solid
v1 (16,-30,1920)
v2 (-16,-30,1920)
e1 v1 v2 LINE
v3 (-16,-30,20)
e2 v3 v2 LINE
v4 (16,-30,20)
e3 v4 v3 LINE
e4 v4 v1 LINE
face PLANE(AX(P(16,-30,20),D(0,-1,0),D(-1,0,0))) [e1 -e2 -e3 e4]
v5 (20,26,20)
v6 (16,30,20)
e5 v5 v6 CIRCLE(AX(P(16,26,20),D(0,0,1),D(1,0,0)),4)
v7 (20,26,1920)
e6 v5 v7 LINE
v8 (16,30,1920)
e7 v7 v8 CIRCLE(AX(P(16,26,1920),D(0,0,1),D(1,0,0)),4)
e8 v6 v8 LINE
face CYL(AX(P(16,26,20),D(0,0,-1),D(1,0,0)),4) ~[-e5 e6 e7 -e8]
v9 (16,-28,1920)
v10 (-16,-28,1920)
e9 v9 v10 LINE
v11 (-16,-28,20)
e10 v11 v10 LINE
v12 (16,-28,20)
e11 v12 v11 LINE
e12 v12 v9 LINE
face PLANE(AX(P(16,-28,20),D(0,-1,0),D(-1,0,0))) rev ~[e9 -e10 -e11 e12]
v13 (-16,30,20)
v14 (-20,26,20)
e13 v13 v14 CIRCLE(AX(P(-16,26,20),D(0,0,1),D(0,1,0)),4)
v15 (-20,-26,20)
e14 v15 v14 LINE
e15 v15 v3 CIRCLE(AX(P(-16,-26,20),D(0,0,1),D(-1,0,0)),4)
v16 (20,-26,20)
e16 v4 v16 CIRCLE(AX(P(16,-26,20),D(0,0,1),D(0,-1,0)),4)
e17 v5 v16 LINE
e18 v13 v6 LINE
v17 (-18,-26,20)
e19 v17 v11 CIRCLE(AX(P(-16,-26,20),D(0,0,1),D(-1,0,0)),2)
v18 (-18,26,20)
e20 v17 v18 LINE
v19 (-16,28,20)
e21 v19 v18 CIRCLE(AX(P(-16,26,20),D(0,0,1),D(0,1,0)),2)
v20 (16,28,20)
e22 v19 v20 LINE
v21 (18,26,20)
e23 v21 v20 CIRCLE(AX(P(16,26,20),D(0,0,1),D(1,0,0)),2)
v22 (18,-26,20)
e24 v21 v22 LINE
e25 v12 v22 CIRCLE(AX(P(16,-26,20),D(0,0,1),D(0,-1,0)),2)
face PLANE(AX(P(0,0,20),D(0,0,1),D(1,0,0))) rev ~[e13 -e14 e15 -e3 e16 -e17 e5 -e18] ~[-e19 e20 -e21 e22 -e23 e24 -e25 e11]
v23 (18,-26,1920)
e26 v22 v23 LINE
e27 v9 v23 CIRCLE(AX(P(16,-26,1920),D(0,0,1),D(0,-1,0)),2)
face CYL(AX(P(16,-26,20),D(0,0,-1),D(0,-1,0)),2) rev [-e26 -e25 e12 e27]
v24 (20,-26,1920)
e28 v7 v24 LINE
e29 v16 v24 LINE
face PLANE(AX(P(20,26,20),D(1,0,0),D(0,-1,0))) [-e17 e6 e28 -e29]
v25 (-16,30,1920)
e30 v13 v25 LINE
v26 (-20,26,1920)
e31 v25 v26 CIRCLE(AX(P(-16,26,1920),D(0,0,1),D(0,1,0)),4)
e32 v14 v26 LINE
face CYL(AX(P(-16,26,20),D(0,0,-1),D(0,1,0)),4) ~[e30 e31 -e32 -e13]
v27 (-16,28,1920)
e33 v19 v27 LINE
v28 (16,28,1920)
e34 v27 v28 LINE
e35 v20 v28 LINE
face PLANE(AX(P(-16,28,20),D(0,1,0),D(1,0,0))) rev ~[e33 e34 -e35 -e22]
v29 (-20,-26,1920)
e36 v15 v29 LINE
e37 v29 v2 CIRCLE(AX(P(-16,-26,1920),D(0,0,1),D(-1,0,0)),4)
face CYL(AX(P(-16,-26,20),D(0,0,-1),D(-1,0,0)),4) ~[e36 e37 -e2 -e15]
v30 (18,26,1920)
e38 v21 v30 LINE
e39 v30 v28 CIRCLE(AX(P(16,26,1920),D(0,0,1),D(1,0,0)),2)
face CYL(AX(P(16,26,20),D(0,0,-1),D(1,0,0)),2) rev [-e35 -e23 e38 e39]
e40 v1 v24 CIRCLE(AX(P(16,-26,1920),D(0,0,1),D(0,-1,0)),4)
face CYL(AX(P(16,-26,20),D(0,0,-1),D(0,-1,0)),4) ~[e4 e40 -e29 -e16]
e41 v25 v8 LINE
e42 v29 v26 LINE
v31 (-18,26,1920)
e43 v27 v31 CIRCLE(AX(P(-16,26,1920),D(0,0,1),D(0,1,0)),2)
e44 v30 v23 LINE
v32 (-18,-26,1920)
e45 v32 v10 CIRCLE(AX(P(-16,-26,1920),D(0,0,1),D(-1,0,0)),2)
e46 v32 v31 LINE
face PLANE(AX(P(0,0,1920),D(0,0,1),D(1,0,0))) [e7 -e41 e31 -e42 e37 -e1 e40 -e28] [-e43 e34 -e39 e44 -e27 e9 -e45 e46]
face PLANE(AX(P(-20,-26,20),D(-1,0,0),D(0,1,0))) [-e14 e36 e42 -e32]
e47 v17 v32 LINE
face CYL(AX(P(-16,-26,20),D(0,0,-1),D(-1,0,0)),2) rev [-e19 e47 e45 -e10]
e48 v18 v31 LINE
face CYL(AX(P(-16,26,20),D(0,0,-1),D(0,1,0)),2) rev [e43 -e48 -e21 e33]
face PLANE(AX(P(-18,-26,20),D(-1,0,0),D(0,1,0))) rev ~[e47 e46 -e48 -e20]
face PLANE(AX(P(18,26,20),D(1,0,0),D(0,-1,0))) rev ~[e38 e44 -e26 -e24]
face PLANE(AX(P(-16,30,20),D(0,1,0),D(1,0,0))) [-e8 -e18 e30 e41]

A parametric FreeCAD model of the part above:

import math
import FreeCAD as App
import Part
import Sketcher

doc = App.newDocument("Part")
body = doc.addObject("PartDesign::Body", "Body")

# Sketch on XY plane
sketch1 = body.newObject("Sketcher::SketchObject", "Sketch")
sketch1.AttachmentSupport = (doc.getObject("XY_Plane"), [""])
sketch1.MapMode = "FlatFace"
sketch1.AttachmentOffset = App.Placement(App.Vector(0, 0, 20), App.Rotation())
sketch1.addGeometry(Part.LineSegment(App.Vector(-20, 26, 0), App.Vector(-20, -26, 0)), False)
sketch1.addGeometry(Part.ArcOfCircle(Part.Circle(App.Vector(-16, -26, 0), App.Vector(0, 0, 1), 4), math.radians(180), math.radians(270)), False)
sketch1.addGeometry(Part.LineSegment(App.Vector(-16, -30, 0), App.Vector(16, -30, 0)), False)
sketch1.addGeometry(Part.ArcOfCircle(Part.Circle(App.Vector(16, -26, 0), App.Vector(0, 0, 1), 4), math.radians(-90), math.radians(0)), False)
sketch1.addGeometry(Part.LineSegment(App.Vector(20, -26, 0), App.Vector(20, 26, 0)), False)
sketch1.addGeometry(Part.ArcOfCircle(Part.Circle(App.Vector(16, 26, 0), App.Vector(0, 0, 1), 4), math.radians(0), math.radians(90)), False)
sketch1.addGeometry(Part.LineSegment(App.Vector(16, 30, 0), App.Vector(-16, 30, 0)), False)
sketch1.addGeometry(Part.ArcOfCircle(Part.Circle(App.Vector(-16, 26, 0), App.Vector(0, 0, 1), 4), math.radians(90), math.radians(180)), False)
sketch1.addGeometry(Part.ArcOfCircle(Part.Circle(App.Vector(-16, 26, 0), App.Vector(0, 0, 1), 2), math.radians(90), math.radians(180)), False)
sketch1.addGeometry(Part.LineSegment(App.Vector(-16, 28, 0), App.Vector(16, 28, 0)), False)
sketch1.addGeometry(Part.ArcOfCircle(Part.Circle(App.Vector(16, 26, 0), App.Vector(0, 0, 1), 2), math.radians(0), math.radians(90)), False)
sketch1.addGeometry(Part.LineSegment(App.Vector(18, 26, 0), App.Vector(18, -26, 0)), False)
sketch1.addGeometry(Part.ArcOfCircle(Part.Circle(App.Vector(16, -26, 0), App.Vector(0, 0, 1), 2), math.radians(-90), math.radians(0)), False)
sketch1.addGeometry(Part.LineSegment(App.Vector(16, -28, 0), App.Vector(-16, -28, 0)), False)
sketch1.addGeometry(Part.ArcOfCircle(Part.Circle(App.Vector(-16, -26, 0), App.Vector(0, 0, 1), 2), math.radians(180), math.radians(270)), False)
sketch1.addGeometry(Part.LineSegment(App.Vector(-18, -26, 0), App.Vector(-18, 26, 0)), False)
sketch1.addConstraint(Sketcher.Constraint("Tangent", 0, 2, 1, 1))
sketch1.addConstraint(Sketcher.Constraint("Tangent", 1, 2, 2, 1))
sketch1.addConstraint(Sketcher.Constraint("Tangent", 2, 2, 3, 1))
sketch1.addConstraint(Sketcher.Constraint("Tangent", 3, 2, 4, 1))
sketch1.addConstraint(Sketcher.Constraint("Tangent", 4, 2, 5, 1))
sketch1.addConstraint(Sketcher.Constraint("Tangent", 5, 2, 6, 1))
sketch1.addConstraint(Sketcher.Constraint("Tangent", 6, 2, 7, 1))
sketch1.addConstraint(Sketcher.Constraint("Tangent", 7, 2, 0, 1))
sketch1.addConstraint(Sketcher.Constraint("Tangent", 8, 1, 9, 1))
sketch1.addConstraint(Sketcher.Constraint("Tangent", 9, 2, 10, 2))
sketch1.addConstraint(Sketcher.Constraint("Tangent", 10, 1, 11, 1))
sketch1.addConstraint(Sketcher.Constraint("Tangent", 11, 2, 12, 2))
sketch1.addConstraint(Sketcher.Constraint("Tangent", 12, 1, 13, 1))
sketch1.addConstraint(Sketcher.Constraint("Tangent", 13, 2, 14, 2))
sketch1.addConstraint(Sketcher.Constraint("Tangent", 14, 1, 15, 1))
sketch1.addConstraint(Sketcher.Constraint("Tangent", 15, 2, 8, 2))
sketch1.addConstraint(Sketcher.Constraint("Vertical", 0))
sketch1.addConstraint(Sketcher.Constraint("Horizontal", 2))
sketch1.addConstraint(Sketcher.Constraint("Vertical", 4))
sketch1.addConstraint(Sketcher.Constraint("Horizontal", 6))
sketch1.addConstraint(Sketcher.Constraint("Horizontal", 9))
sketch1.addConstraint(Sketcher.Constraint("Vertical", 11))
sketch1.addConstraint(Sketcher.Constraint("Horizontal", 13))
sketch1.addConstraint(Sketcher.Constraint("Vertical", 15))
sketch1.addConstraint(Sketcher.Constraint("Coincident", 8, 3, 7, 3))
sketch1.addConstraint(Sketcher.Constraint("Coincident", 10, 3, 5, 3))
sketch1.addConstraint(Sketcher.Constraint("Coincident", 12, 3, 3, 3))
sketch1.addConstraint(Sketcher.Constraint("Equal", 1, 3))
sketch1.addConstraint(Sketcher.Constraint("Equal", 3, 5))
sketch1.addConstraint(Sketcher.Constraint("Equal", 5, 7))
sketch1.addConstraint(Sketcher.Constraint("Equal", 12, 14))
sketch1.addConstraint(Sketcher.Constraint("Symmetric", 1, 3, 5, 3, -1, 1))
sketch1.addConstraint(Sketcher.Constraint("Radius", 1, 4.0))
sketch1.addConstraint(Sketcher.Constraint("Radius", 8, 2.0))
sketch1.addConstraint(Sketcher.Constraint("DistanceX", 0, 2, -1, 1, 20.0))
sketch1.addConstraint(Sketcher.Constraint("DistanceY", 1, 2, -1, 1, 30.0))
pad1 = body.newObject("PartDesign::Pad", "Pad")
pad1.Profile = sketch1
pad1.Length = 1900

doc.recompute()
